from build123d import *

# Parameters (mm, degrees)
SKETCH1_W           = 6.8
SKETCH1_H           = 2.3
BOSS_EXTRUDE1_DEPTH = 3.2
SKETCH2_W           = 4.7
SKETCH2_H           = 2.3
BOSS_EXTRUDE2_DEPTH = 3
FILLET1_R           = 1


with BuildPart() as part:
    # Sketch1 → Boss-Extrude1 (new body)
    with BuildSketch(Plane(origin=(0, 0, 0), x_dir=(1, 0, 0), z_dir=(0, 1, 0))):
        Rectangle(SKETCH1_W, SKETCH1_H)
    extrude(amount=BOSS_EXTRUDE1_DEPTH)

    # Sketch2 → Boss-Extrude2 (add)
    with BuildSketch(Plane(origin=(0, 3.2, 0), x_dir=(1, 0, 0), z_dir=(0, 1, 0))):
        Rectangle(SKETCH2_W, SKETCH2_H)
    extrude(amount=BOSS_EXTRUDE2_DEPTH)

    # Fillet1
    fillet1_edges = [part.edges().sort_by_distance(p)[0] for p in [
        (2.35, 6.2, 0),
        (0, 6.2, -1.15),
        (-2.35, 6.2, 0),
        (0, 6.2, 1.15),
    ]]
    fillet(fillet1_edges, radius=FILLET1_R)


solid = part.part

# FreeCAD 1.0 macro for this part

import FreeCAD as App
import Part
import Sketcher
from FreeCAD import Vector


def edges_at(feature, points):
    """Names of the edges that pass closest to the given points."""
    edges = feature.Shape.Edges
    near = lambda p: min(range(len(edges)), key=lambda i: edges[i].distToShape(Part.Vertex(*p))[0])
    return sorted({f"Edge{near(p) + 1}" for p in points})


def add_polygon(sketch, points):
    """Adds a closed chain of lines whose ends are joined by coincident constraints."""
    first, n = sketch.GeometryCount, len(points)
    for a, b in zip(points, points[1:] + points[:1]):
        sketch.addGeometry(Part.LineSegment(App.Vector(*a, 0), App.Vector(*b, 0)), False)
    for i in range(n):
        sketch.addConstraint(Sketcher.Constraint("Coincident", first + i, 2, first + (i + 1) % n, 1))

doc = App.newDocument("Part")
body = doc.addObject("PartDesign::Body", "Body")

# Sketch on XZ plane
sketch1 = body.newObject("Sketcher::SketchObject", "Sketch")
sketch1.AttachmentSupport = (doc.getObject("XZ_Plane"), [""])
sketch1.MapMode = "FlatFace"
add_polygon(sketch1, [(-3.4, -1.1), (-3.4, 1.1), (3.4, 1.1), (3.4, -1.1)])  # lines 0-3
sketch1.addConstraint([
    Sketcher.Constraint("Vertical", 0),
    Sketcher.Constraint("Horizontal", 1),
    Sketcher.Constraint("Vertical", 2),
    Sketcher.Constraint("Horizontal", 3),
    Sketcher.Constraint("Symmetric", 0, 2, 2, 2, -1, 1),
    Sketcher.Constraint("DistanceX", 1, 1, 1, 2, 6.8),
    Sketcher.Constraint("DistanceY", 0, 1, 0, 2, 2.3),
])
pad1 = body.newObject("PartDesign::Pad", "Pad")
pad1.Profile = sketch1
pad1.Length = 3.2
pad1.Reversed = True

# Sketch on XZ plane
sketch2 = body.newObject("Sketcher::SketchObject", "Sketch001")
sketch2.AttachmentSupport = (doc.getObject("XZ_Plane"), [""])
sketch2.MapMode = "FlatFace"
sketch2.AttachmentOffset = App.Placement(Vector(0, 0, -3.2), App.Rotation())
add_polygon(sketch2, [(-2.4, -1.1), (-2.4, 1.1), (2.4, 1.1), (2.4, -1.1)])  # lines 0-3
sketch2.addConstraint([
    Sketcher.Constraint("Vertical", 0),
    Sketcher.Constraint("Horizontal", 1),
    Sketcher.Constraint("Vertical", 2),
    Sketcher.Constraint("Horizontal", 3),
    Sketcher.Constraint("Symmetric", 0, 2, 2, 2, -1, 1),
    Sketcher.Constraint("DistanceX", 1, 1, 1, 2, 4.7),
    Sketcher.Constraint("DistanceY", 0, 1, 0, 2, 2.3),
])
pad2 = body.newObject("PartDesign::Pad", "Pad001")
pad2.Profile = sketch2
pad2.Length = 3
pad2.Reversed = True
doc.recompute()

fillet = body.newObject("PartDesign::Fillet", "Fillet")
fillet.Base = (pad2, edges_at(pad2, [
    (2.35, 6.2, 0),
    (0, 6.2, -1.15),
    (-2.35, 6.2, 0),
    (0, 6.2, 1.15),
]))
fillet.Radius = 1

doc.recompute()
